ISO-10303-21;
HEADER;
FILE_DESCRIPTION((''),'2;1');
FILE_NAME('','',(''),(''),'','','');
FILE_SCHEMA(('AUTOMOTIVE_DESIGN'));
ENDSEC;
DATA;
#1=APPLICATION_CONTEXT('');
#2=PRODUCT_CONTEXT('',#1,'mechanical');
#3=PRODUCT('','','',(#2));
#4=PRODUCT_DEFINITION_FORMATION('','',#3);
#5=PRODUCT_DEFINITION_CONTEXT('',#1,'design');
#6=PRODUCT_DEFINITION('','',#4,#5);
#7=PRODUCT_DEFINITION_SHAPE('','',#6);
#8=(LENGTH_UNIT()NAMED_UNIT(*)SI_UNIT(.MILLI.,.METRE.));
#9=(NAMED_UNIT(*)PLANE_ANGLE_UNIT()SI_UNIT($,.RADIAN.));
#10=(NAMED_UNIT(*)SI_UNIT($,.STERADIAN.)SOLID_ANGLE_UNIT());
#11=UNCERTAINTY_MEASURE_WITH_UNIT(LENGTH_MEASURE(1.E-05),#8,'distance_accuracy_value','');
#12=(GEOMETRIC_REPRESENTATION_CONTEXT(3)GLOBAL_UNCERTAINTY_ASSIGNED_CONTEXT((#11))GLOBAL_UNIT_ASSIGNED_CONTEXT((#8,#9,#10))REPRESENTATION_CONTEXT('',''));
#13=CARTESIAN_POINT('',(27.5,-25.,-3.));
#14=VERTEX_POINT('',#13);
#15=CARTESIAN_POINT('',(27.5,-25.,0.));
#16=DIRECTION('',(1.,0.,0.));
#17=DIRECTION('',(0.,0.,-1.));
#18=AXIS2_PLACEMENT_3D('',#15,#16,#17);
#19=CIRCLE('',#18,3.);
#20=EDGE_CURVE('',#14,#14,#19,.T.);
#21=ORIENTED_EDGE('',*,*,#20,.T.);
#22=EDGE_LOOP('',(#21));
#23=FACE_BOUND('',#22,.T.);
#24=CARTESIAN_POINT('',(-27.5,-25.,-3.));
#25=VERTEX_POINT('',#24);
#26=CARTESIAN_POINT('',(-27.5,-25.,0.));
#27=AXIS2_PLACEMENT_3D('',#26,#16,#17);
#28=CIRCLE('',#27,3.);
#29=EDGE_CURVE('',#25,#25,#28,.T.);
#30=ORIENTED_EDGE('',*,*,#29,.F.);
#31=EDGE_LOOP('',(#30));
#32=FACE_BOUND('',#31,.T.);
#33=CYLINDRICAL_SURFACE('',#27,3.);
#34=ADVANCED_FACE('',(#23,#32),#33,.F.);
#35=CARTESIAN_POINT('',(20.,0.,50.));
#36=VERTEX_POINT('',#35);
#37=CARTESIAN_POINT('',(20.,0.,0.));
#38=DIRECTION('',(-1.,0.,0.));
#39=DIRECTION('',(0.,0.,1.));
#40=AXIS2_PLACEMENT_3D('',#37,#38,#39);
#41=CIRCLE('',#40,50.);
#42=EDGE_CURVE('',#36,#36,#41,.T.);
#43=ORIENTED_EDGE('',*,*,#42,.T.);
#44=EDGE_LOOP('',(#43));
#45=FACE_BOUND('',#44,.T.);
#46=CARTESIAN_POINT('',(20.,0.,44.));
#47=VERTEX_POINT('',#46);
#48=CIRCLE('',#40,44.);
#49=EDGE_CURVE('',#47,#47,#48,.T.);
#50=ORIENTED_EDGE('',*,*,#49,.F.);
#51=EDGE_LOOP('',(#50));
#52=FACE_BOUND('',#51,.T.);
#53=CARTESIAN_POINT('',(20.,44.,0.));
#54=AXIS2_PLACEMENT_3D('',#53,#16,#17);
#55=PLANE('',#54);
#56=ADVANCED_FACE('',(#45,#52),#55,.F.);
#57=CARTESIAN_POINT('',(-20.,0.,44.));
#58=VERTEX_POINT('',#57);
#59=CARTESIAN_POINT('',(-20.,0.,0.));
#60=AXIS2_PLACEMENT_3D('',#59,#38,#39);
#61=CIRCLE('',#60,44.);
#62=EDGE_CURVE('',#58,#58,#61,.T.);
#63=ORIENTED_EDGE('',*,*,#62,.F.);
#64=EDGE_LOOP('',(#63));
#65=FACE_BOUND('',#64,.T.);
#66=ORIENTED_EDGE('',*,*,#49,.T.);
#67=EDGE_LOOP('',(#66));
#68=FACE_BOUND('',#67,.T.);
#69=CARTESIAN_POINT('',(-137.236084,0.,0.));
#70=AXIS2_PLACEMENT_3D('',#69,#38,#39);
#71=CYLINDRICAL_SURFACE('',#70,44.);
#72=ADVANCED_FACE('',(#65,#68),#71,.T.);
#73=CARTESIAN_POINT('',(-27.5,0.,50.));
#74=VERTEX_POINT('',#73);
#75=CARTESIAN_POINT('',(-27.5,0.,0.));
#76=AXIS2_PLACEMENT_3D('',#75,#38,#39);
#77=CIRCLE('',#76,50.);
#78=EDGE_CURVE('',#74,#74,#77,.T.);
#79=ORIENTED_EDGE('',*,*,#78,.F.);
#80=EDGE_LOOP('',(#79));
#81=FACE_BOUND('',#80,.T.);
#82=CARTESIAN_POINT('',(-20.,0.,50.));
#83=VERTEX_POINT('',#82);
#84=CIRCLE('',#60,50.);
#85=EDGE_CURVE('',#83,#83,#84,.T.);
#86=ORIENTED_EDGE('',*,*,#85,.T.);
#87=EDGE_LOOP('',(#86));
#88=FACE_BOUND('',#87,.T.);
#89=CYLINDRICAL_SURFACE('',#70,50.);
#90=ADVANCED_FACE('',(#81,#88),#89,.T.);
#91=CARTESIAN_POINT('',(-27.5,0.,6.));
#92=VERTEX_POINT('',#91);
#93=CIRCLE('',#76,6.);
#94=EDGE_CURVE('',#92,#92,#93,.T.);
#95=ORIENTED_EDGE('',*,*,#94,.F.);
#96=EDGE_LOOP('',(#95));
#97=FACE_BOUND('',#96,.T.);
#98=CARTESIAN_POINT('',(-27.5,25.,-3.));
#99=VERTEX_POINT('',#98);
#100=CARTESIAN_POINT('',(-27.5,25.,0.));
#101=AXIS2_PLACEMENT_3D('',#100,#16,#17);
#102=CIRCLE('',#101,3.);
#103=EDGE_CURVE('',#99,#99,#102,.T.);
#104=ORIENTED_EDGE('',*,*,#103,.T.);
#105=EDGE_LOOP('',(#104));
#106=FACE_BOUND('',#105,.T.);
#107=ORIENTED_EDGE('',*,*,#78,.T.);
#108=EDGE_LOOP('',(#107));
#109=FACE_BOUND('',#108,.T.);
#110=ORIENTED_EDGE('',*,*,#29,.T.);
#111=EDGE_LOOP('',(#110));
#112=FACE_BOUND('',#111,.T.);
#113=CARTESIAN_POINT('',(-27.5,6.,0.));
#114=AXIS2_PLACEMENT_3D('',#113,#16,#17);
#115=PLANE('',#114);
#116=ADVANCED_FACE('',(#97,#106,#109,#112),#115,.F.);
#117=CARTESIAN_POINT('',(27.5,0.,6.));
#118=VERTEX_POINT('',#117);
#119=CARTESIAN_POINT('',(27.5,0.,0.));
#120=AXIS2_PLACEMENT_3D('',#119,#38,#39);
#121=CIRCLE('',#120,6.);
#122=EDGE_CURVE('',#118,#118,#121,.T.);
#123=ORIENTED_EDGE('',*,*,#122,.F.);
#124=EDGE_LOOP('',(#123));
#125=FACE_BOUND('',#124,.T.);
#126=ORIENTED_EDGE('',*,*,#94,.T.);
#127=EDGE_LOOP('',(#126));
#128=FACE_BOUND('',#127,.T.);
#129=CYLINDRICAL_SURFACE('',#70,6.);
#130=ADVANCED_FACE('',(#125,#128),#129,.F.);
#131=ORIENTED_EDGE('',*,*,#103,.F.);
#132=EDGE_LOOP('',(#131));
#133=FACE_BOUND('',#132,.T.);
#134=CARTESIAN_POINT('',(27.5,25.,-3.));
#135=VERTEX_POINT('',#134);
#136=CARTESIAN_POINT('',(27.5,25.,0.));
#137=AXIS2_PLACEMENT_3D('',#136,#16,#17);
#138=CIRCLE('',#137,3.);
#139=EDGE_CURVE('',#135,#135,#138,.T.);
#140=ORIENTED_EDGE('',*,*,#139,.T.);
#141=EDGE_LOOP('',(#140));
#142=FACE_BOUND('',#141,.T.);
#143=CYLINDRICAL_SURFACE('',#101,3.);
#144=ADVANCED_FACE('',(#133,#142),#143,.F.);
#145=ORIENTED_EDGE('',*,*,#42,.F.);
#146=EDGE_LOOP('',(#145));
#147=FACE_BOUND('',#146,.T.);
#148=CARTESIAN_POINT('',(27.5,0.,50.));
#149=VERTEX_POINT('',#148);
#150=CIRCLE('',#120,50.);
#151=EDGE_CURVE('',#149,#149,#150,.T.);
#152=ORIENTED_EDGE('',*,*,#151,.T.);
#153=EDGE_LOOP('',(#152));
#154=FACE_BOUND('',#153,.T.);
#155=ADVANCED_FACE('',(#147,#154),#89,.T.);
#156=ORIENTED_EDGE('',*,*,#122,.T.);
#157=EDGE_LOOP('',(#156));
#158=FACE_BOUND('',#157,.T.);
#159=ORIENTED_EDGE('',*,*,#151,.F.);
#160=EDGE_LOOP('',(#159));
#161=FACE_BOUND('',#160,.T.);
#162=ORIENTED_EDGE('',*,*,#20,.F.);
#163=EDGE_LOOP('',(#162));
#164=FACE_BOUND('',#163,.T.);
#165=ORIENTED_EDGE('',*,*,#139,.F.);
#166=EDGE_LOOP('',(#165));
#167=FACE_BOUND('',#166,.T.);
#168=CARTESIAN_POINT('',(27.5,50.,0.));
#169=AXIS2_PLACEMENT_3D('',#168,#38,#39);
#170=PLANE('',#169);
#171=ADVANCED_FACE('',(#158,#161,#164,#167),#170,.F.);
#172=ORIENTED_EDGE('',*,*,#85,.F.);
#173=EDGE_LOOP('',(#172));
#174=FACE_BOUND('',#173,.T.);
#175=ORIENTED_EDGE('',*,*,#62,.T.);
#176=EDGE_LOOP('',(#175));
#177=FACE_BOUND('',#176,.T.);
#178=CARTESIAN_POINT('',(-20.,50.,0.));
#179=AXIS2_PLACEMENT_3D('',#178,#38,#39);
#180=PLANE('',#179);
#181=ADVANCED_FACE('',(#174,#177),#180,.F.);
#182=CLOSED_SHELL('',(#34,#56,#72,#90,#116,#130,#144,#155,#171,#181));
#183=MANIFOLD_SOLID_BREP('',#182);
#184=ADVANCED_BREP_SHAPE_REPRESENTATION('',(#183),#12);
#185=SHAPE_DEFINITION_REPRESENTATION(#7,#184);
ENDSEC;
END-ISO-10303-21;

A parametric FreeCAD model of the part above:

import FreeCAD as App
import Part
import Sketcher
Q = App.Units.Quantity

doc = App.newDocument("Part")
body = doc.addObject("PartDesign::Body", "Body")

# Sketch on XY plane
sketch1 = doc.addObject("Sketcher::SketchObject", "Sketch")
body.addObject(sketch1)
sketch1.AttachmentSupport = (doc.XY_Plane, [""])
sketch1.MapMode = "FlatFace"
sketch1.addGeometry([
    Part.LineSegment(App.Vector(27.5, 50, 0), App.Vector(20, 50, 0)),  # 0
    Part.LineSegment(App.Vector(20, 50, 0), App.Vector(20, 44, 0)),  # 1
    Part.LineSegment(App.Vector(20, 44, 0), App.Vector(-20, 44, 0)),  # 2
    Part.LineSegment(App.Vector(-20, 44, 0), App.Vector(-20, 50, 0)),  # 3
    Part.LineSegment(App.Vector(-20, 50, 0), App.Vector(-27.5, 50, 0)),  # 4
    Part.LineSegment(App.Vector(-27.5, 50, 0), App.Vector(-27.5, 6, 0)),  # 5
    Part.LineSegment(App.Vector(-27.5, 6, 0), App.Vector(27.5, 6, 0)),  # 6
    Part.LineSegment(App.Vector(27.5, 6, 0), App.Vector(27.5, 50, 0)),  # 7
], False)
sketch1.addConstraint([
    Sketcher.Constraint("Coincident", 0, 2, 1, 1),
    Sketcher.Constraint("Coincident", 1, 2, 2, 1),
    Sketcher.Constraint("Coincident", 2, 2, 3, 1),
    Sketcher.Constraint("Coincident", 3, 2, 4, 1),
    Sketcher.Constraint("Coincident", 4, 2, 5, 1),
    Sketcher.Constraint("Coincident", 5, 2, 6, 1),
    Sketcher.Constraint("Coincident", 6, 2, 7, 1),
    Sketcher.Constraint("Coincident", 7, 2, 0, 1),
    Sketcher.Constraint("Horizontal", 0),
    Sketcher.Constraint("Vertical", 1),
    Sketcher.Constraint("Horizontal", 2),
    Sketcher.Constraint("Vertical", 3),
    Sketcher.Constraint("Horizontal", 4),
    Sketcher.Constraint("Vertical", 5),
    Sketcher.Constraint("Horizontal", 6),
    Sketcher.Constraint("Vertical", 7),
    Sketcher.Constraint("Symmetric", 0, 2, 3, 2, -2),
    Sketcher.Constraint("Equal", 0, 4),
    Sketcher.Constraint("DistanceX", 2, 2, 2, 1, Q("40 mm")),
    Sketcher.Constraint("DistanceX", 6, 1, 6, 2, Q("55 mm")),
    Sketcher.Constraint("DistanceY", 1, 2, 1, 1, Q("6 mm")),
    Sketcher.Constraint("DistanceY", 5, 2, 5, 1, Q("44 mm")),
    Sketcher.Constraint("DistanceY", -1, 1, 0, 2, Q("50 mm")),
])
revolution = doc.addObject("PartDesign::Revolution", "Revolution")
body.addObject(revolution)
revolution.Profile = sketch1
revolution.ReferenceAxis = (sketch1, ["H_Axis"])
revolution.Angle = 360

# Sketch on YZ plane
sketch2 = doc.addObject("Sketcher::SketchObject", "Sketch001")
body.addObject(sketch2)
sketch2.AttachmentSupport = (doc.YZ_Plane, [""])
sketch2.MapMode = "FlatFace"
sketch2.AttachmentOffset = App.Placement(App.Vector(0, 0, 27.5), App.Rotation())
sketch2.addGeometry([
    Part.Circle(App.Vector(25, 0, 0), App.Vector(0, 0, 1), 3),
    Part.Circle(App.Vector(-25, 0, 0), App.Vector(0, 0, 1), 3),
], False)
sketch2.addConstraint([
    Sketcher.Constraint("Equal", 0, 1),
    Sketcher.Constraint("Symmetric", 0, 3, 1, 3, -1, 1),
    Sketcher.Constraint("PointOnObject", 0, 3, -1),
    Sketcher.Constraint("Diameter", 0, Q("6 mm")),
    Sketcher.Constraint("DistanceX", -1, 1, 0, 3, Q("25 mm")),
])
pocket1 = doc.addObject("PartDesign::Pocket", "Pocket")
body.addObject(pocket1)
pocket1.Profile = sketch2
pocket1.Type = "ThroughAll"

doc.recompute()
